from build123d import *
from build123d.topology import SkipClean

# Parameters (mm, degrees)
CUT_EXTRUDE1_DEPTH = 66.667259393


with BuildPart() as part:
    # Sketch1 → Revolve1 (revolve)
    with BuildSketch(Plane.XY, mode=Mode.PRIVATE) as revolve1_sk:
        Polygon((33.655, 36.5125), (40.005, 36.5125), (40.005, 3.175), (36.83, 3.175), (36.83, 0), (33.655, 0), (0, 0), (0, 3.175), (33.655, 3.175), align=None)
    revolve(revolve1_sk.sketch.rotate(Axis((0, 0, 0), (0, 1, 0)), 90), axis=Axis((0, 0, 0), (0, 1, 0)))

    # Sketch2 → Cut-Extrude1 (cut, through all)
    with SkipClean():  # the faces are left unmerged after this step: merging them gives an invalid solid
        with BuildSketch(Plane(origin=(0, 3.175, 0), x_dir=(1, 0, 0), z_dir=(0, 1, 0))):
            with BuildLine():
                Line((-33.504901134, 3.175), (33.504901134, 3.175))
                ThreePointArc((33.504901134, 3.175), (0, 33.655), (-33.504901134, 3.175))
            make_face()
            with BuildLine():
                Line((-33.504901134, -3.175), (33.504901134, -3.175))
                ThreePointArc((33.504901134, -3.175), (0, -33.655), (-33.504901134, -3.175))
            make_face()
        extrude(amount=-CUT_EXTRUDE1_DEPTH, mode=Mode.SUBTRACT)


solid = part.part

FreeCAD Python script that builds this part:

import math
import FreeCAD as App
import Part
import Sketcher

V = App.Vector
Q = App.Units.Quantity

doc = App.newDocument("Part")
params = doc.addObject("Spreadsheet::Sheet", "Params")
for row, (alias, value) in enumerate([
    ("sketch1_width", "0.25 in"),
    ("sketch1_width2", "1.45 in"),
    ("sketch1_width3", "1.325 in"),
    ("sketch1_height", "1.3125 in"),
    ("revolution_angle", "360 deg"),
    ("sketch2_radius", "1.325 in"),
], start=1):
    params.set(f"A{row}", alias)
    params.set(f"B{row}", "=" + value)
    params.setAlias(f"B{row}", alias)

body = doc.addObject("PartDesign::Body", "Body")

sketch1 = doc.addObject("Sketcher::SketchObject", "Sketch")
body.addObject(sketch1)
sketch1.AttachmentSupport = (doc.XY_Plane, [""])
sketch1.MapMode = "FlatFace"
sketch1.addGeometry(Part.LineSegment(V(40, 36.5, 0), V(33.7, 36.5, 0)), False)
sketch1.addGeometry(Part.LineSegment(V(33.7, 36.5, 0), V(33.7, 3.2, 0)), False)
sketch1.addGeometry(Part.LineSegment(V(33.7, 3.2, 0), V(0, 3.2, 0)), False)
sketch1.addGeometry(Part.LineSegment(V(0, 3.2, 0), V(0, 0, 0)), False)
sketch1.addGeometry(Part.LineSegment(V(0, 0, 0), V(36.8, 0, 0)), False)
sketch1.addGeometry(Part.LineSegment(V(36.8, 0, 0), V(36.8, 3.2, 0)), False)
sketch1.addGeometry(Part.LineSegment(V(36.8, 3.2, 0), V(40, 3.2, 0)), False)
sketch1.addGeometry(Part.LineSegment(V(40, 3.2, 0), V(40, 36.5, 0)), False)
sketch1.addConstraint(Sketcher.Constraint("Coincident", 0, 2, 1, 1))
sketch1.addConstraint(Sketcher.Constraint("Coincident", 1, 2, 2, 1))
sketch1.addConstraint(Sketcher.Constraint("Coincident", 2, 2, 3, 1))
sketch1.addConstraint(Sketcher.Constraint("Coincident", 3, 2, 4, 1))
sketch1.addConstraint(Sketcher.Constraint("Coincident", 4, 2, 5, 1))
sketch1.addConstraint(Sketcher.Constraint("Coincident", 5, 2, 6, 1))
sketch1.addConstraint(Sketcher.Constraint("Coincident", 6, 2, 7, 1))
sketch1.addConstraint(Sketcher.Constraint("Coincident", 7, 2, 0, 1))
sketch1.addConstraint(Sketcher.Constraint("Horizontal", 0))
sketch1.addConstraint(Sketcher.Constraint("Vertical", 1))
sketch1.addConstraint(Sketcher.Constraint("Horizontal", 2))
sketch1.addConstraint(Sketcher.Constraint("Vertical", 3))
sketch1.addConstraint(Sketcher.Constraint("Horizontal", 4))
sketch1.addConstraint(Sketcher.Constraint("Vertical", 5))
sketch1.addConstraint(Sketcher.Constraint("Horizontal", 6))
sketch1.addConstraint(Sketcher.Constraint("Vertical", 7))
sketch1.addConstraint(Sketcher.Constraint("Coincident", 3, 2, -1, 1))
sketch1.addConstraint(Sketcher.Constraint("Horizontal", 2, 2, 5, 2))
sketch1.addConstraint(Sketcher.Constraint("Equal", 6, 3))
sketch1.addConstraint(Sketcher.Constraint("DistanceX", 0, 2, 0, 1, Q("0.25 in")))
sketch1.addConstraint(Sketcher.Constraint("DistanceX", 4, 1, 4, 2, Q("1.45 in")))
sketch1.addConstraint(Sketcher.Constraint("DistanceX", 2, 2, 2, 1, Q("1.325 in")))
sketch1.addConstraint(Sketcher.Constraint("DistanceY", 1, 2, 1, 1, Q("1.3125 in")))
sketch1.setExpression("Constraints[19]", "Params.sketch1_width")
sketch1.setExpression("Constraints[20]", "Params.sketch1_width2")
sketch1.setExpression("Constraints[21]", "Params.sketch1_width3")
sketch1.setExpression("Constraints[22]", "Params.sketch1_height")
revolution = doc.addObject("PartDesign::Revolution", "Revolution")
body.addObject(revolution)
revolution.Profile = sketch1
revolution.ReferenceAxis = (sketch1, ["V_Axis"])
revolution.setExpression("Angle", "Params.revolution_angle")

sketch2 = doc.addObject("Sketcher::SketchObject", "Sketch001")
body.addObject(sketch2)
sketch2.AttachmentSupport = (doc.XZ_Plane, [""])
sketch2.MapMode = "FlatFace"
sketch2.AttachmentOffset = App.Placement(V(0, 0, -0.125 * 25.4), App.Rotation())
sketch2.addGeometry(Part.LineSegment(V(-34, -3, 0), V(34, -3, 0)), False)
sketch2.addGeometry(Part.ArcOfCircle(Part.Circle(V(0, 0, 0), V(0, 0, 1), 34), math.radians(-175), math.radians(-5)), False)
sketch2.addGeometry(Part.LineSegment(V(34, 3, 0), V(-34, 3, 0)), False)
sketch2.addGeometry(Part.ArcOfCircle(Part.Circle(V(0, 0, 0), V(0, 0, 1), 34), math.radians(5), math.radians(175)), False)
sketch2.addConstraint(Sketcher.Constraint("Coincident", 0, 1, 1, 1))
sketch2.addConstraint(Sketcher.Constraint("Coincident", 1, 2, 0, 2))
sketch2.addConstraint(Sketcher.Constraint("Coincident", 2, 1, 3, 1))
sketch2.addConstraint(Sketcher.Constraint("Coincident", 3, 2, 2, 2))
sketch2.addConstraint(Sketcher.Constraint("Horizontal", 0))
sketch2.addConstraint(Sketcher.Constraint("Horizontal", 2))
sketch2.addConstraint(Sketcher.Constraint("Coincident", 1, 3, -1, 1))
sketch2.addConstraint(Sketcher.Constraint("Coincident", 3, 3, -1, 1))
sketch2.addConstraint(Sketcher.Constraint("Equal", 1, 3))
sketch2.addConstraint(Sketcher.Constraint("Vertical", 1, 2, 2, 1))
sketch2.addConstraint(Sketcher.Constraint("Radius", 1, Q("1.325 in")))
sketch2.addConstraint(Sketcher.Constraint("DistanceY", 1, 2, 2, 1, Q("0.25 in")))
sketch2.setExpression("Constraints[10]", "Params.sketch2_radius")
pocket1 = doc.addObject("PartDesign::Pocket", "Pocket")
body.addObject(pocket1)
pocket1.Profile = sketch2
pocket1.Type = "ThroughAll"
pocket1.Reversed = True

doc.recompute()
